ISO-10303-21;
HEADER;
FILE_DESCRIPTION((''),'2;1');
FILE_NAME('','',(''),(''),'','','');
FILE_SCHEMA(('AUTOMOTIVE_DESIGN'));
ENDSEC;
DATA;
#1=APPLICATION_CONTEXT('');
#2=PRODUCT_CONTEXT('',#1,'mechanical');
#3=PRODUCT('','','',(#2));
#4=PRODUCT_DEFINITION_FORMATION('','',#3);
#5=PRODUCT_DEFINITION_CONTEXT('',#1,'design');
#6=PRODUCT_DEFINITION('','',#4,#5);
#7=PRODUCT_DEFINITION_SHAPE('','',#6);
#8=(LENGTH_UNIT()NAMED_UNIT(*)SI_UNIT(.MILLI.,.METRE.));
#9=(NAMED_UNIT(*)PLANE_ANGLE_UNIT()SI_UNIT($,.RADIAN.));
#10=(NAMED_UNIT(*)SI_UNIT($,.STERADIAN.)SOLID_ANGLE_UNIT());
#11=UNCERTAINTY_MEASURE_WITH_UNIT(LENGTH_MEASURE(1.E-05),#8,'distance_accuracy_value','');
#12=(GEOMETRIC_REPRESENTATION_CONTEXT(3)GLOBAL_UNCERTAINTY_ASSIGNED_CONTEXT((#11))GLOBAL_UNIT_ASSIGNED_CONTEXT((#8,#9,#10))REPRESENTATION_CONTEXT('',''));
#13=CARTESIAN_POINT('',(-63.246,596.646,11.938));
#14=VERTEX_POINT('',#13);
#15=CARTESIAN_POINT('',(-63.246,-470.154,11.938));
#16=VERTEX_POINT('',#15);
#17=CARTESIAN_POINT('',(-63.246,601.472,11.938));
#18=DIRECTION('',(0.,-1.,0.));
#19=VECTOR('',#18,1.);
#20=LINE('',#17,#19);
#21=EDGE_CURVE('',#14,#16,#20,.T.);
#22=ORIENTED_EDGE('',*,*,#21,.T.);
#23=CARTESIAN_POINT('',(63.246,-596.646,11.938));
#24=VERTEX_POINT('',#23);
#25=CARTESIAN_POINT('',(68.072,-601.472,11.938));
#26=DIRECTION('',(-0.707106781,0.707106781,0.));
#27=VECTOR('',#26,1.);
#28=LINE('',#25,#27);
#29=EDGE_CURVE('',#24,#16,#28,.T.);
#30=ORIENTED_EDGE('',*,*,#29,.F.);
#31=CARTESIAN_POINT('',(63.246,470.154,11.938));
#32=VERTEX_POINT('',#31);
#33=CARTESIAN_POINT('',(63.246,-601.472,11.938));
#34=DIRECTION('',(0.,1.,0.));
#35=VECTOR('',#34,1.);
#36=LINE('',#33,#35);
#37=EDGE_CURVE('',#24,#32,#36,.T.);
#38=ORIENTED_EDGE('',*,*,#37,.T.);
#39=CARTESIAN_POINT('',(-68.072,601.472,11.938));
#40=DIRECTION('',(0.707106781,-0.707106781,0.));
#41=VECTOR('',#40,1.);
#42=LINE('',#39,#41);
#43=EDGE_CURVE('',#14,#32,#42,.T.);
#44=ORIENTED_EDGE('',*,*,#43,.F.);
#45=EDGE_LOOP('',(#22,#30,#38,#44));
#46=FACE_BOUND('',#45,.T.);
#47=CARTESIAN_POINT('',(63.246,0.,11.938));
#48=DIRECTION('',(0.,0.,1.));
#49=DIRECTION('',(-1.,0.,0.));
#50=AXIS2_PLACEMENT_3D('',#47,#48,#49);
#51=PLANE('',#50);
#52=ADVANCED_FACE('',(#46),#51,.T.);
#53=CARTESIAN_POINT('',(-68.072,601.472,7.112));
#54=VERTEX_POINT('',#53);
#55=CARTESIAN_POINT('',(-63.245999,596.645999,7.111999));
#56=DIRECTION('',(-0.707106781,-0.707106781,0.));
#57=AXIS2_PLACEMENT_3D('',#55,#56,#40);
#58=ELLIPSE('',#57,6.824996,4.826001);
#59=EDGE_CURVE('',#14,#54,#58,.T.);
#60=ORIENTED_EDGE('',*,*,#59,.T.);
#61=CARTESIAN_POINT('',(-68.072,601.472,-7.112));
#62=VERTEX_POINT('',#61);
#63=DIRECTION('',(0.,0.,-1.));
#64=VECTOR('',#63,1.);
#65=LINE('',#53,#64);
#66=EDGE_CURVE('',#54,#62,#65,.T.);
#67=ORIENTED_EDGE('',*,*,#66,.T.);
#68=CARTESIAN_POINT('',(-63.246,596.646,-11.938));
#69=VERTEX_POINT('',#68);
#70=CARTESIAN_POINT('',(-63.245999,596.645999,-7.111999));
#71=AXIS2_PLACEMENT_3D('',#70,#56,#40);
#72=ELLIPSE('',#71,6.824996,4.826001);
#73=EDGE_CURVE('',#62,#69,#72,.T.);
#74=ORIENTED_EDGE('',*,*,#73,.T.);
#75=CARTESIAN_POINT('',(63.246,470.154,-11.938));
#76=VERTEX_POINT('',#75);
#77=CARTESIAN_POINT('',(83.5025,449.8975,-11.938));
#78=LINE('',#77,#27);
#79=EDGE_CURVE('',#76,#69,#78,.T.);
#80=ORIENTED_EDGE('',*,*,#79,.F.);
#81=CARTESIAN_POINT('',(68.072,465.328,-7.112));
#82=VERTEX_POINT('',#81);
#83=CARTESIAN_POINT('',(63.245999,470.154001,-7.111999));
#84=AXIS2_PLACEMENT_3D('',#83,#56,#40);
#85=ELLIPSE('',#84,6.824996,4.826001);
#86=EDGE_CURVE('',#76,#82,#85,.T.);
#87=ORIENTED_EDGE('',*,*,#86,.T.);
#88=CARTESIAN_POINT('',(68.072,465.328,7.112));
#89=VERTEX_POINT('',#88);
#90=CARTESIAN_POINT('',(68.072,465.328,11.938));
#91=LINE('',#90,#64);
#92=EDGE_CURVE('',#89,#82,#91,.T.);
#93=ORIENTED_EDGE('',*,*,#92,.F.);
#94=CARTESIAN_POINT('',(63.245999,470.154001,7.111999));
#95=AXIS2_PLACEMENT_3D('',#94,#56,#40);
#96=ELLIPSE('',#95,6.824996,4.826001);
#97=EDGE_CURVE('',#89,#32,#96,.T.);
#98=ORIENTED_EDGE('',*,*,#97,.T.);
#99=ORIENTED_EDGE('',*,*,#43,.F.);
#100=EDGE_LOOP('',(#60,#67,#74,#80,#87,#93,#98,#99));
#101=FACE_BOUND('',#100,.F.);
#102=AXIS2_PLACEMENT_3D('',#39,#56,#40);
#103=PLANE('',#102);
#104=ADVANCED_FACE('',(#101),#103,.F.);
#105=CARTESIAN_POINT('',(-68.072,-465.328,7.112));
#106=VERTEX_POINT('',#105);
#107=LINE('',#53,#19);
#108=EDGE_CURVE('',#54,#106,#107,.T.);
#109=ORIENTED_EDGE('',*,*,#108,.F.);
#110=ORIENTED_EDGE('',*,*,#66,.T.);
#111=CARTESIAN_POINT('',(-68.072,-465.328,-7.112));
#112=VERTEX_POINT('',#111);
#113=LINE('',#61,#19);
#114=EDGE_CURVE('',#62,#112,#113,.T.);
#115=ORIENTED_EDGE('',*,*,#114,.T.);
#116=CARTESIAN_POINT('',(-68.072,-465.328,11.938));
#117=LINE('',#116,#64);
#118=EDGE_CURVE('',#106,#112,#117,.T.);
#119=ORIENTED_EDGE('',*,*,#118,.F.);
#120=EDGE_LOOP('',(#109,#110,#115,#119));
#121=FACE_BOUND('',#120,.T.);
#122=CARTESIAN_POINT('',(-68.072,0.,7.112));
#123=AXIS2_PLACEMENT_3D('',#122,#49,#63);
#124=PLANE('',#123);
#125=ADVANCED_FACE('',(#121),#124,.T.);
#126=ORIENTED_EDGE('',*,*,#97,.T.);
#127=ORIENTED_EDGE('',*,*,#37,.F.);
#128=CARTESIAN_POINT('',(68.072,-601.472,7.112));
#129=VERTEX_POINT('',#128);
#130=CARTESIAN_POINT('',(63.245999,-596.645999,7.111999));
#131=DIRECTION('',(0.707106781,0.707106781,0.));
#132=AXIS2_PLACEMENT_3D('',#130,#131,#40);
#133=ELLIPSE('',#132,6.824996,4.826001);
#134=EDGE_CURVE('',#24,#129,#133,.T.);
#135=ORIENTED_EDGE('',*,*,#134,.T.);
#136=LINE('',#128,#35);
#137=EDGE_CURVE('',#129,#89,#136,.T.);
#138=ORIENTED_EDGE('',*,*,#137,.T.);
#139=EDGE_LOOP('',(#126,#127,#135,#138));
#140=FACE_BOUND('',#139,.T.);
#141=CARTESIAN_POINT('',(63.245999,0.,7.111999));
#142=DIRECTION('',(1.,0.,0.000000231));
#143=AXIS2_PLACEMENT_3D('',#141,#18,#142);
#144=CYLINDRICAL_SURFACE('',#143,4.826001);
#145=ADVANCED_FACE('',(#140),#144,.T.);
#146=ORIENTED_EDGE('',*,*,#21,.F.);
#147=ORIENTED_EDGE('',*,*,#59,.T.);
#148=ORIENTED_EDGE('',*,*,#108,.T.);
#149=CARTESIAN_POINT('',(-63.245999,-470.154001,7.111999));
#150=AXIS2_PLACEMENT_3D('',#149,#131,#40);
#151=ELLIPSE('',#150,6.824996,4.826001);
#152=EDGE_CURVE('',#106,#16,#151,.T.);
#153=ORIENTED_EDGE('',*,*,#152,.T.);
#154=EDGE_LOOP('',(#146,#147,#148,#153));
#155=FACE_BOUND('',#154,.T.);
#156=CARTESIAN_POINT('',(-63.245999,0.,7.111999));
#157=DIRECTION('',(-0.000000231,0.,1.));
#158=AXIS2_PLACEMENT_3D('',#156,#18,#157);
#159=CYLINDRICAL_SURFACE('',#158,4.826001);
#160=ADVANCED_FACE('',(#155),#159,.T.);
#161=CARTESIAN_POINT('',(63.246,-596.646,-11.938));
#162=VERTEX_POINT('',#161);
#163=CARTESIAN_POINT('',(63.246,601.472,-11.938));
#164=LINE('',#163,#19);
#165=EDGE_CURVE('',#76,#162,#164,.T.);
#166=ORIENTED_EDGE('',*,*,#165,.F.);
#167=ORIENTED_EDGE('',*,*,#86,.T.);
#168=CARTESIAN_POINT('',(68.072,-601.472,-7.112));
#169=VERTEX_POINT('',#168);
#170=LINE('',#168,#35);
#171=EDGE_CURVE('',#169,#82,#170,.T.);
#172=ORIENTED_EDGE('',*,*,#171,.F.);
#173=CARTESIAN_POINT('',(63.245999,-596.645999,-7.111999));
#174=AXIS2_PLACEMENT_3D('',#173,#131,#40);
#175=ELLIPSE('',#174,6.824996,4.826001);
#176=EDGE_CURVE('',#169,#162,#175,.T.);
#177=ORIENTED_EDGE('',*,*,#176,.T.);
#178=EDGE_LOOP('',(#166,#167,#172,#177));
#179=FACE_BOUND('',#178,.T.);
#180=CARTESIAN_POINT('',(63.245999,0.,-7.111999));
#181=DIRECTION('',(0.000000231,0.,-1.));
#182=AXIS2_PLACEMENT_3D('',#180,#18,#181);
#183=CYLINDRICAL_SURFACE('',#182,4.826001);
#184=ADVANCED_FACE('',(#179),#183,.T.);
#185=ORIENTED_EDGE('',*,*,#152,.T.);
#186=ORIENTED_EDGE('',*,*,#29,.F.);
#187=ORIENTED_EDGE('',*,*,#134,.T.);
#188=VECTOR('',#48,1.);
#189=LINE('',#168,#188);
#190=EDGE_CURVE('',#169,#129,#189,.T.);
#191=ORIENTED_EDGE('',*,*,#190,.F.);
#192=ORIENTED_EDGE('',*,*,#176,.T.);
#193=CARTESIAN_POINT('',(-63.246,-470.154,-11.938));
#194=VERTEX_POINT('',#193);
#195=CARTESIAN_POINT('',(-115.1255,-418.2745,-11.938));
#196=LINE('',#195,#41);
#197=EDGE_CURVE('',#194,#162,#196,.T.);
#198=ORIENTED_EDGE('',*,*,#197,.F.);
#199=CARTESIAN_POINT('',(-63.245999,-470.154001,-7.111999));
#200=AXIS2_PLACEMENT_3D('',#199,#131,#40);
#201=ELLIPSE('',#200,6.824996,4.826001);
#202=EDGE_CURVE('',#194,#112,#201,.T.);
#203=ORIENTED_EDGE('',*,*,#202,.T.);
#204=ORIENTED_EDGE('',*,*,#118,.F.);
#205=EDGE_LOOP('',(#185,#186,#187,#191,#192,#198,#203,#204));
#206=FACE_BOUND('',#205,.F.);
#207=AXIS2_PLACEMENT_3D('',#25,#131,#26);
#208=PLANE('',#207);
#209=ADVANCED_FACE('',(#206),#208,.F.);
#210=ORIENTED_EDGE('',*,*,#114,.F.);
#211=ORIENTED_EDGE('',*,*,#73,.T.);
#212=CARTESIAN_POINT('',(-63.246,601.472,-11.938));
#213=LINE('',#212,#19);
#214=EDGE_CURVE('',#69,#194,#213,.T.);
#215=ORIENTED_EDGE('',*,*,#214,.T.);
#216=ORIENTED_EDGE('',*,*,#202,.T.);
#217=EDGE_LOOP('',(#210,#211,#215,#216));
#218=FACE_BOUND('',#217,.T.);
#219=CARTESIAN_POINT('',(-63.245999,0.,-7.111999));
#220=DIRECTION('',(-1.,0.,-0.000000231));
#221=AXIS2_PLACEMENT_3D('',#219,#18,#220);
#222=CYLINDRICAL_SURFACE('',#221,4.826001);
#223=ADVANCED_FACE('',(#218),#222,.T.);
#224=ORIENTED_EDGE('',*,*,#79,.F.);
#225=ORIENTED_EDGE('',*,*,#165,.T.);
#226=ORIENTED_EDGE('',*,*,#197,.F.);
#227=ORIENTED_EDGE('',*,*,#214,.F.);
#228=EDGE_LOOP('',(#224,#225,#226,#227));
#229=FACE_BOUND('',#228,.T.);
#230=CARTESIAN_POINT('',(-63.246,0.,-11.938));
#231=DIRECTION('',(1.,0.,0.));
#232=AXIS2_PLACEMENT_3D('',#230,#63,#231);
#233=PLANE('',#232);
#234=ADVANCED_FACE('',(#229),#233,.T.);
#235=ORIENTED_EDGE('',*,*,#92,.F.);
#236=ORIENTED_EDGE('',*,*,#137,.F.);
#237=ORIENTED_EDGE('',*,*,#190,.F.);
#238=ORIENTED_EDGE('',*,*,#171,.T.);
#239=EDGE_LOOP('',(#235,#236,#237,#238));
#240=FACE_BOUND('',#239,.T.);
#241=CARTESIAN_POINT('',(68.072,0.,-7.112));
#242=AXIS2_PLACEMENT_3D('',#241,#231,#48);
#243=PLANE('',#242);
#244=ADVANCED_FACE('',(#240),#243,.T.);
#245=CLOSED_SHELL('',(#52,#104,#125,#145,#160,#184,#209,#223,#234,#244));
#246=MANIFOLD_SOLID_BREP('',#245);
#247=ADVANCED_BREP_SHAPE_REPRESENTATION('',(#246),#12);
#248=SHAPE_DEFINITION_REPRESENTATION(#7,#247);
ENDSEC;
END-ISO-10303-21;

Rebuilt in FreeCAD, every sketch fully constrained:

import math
import FreeCAD as App
import Part
import Sketcher
from FreeCAD import Vector
Q = App.Units.Quantity

doc = App.newDocument("Part")
body = doc.addObject("PartDesign::Body", "Body")

sketch1 = body.newObject("Sketcher::SketchObject", "Sketch")
sketch1.AttachmentSupport = (doc.getObject("XZ_Plane"), [""])
sketch1.MapMode = "FlatFace"
sketch1.addGeometry([
    Part.LineSegment(Vector(63.2, 11.9, 0), Vector(-63.2, 11.9, 0)),
    Part.ArcOfCircle(Part.Circle(Vector(-63.2, 7.1, 0), Vector(0, 0, 1), 4.8), math.radians(90), math.radians(180)),
    Part.LineSegment(Vector(-68.1, 7.1, 0), Vector(-68.1, -7.1, 0)),
    Part.ArcOfCircle(Part.Circle(Vector(-63.2, -7.1, 0), Vector(0, 0, 1), 4.8), math.radians(-180), math.radians(-90)),
    Part.LineSegment(Vector(-63.2, -11.9, 0), Vector(63.2, -11.9, 0)),
    Part.ArcOfCircle(Part.Circle(Vector(63.2, -7.1, 0), Vector(0, 0, 1), 4.8), math.radians(-90), math.radians(0)),
    Part.LineSegment(Vector(68.1, -7.1, 0), Vector(68.1, 7.1, 0)),
    Part.ArcOfCircle(Part.Circle(Vector(63.2, 7.1, 0), Vector(0, 0, 1), 4.8), math.radians(0), math.radians(90)),
], False)
sketch1.addConstraint([
    Sketcher.Constraint("Tangent", 0, 2, 1, 1),
    Sketcher.Constraint("Tangent", 1, 2, 2, 1),
    Sketcher.Constraint("Tangent", 2, 2, 3, 1),
    Sketcher.Constraint("Tangent", 3, 2, 4, 1),
    Sketcher.Constraint("Tangent", 4, 2, 5, 1),
    Sketcher.Constraint("Tangent", 5, 2, 6, 1),
    Sketcher.Constraint("Tangent", 6, 2, 7, 1),
    Sketcher.Constraint("Tangent", 7, 2, 0, 1),
    Sketcher.Constraint("Horizontal", 0),
    Sketcher.Constraint("Vertical", 2),
    Sketcher.Constraint("Horizontal", 4),
    Sketcher.Constraint("Vertical", 6),
    Sketcher.Constraint("Equal", 1, 3),
    Sketcher.Constraint("Equal", 3, 5),
    Sketcher.Constraint("Equal", 5, 7),
    Sketcher.Constraint("Symmetric", 1, 3, 5, 3, -1, 1),
    Sketcher.Constraint("Radius", 1, Q("0.19 in")),
    Sketcher.Constraint("DistanceX", 0, 2, 0, 1, Q("4.98 in")),
    Sketcher.Constraint("DistanceY", 2, 2, 2, 1, Q("0.56 in")),
])
pad1 = body.newObject("PartDesign::Pad", "Pad")
pad1.Profile = sketch1
pad1.Length = Q("47.36 in")
pad1.Midplane = True

sketch2 = body.newObject("Sketcher::SketchObject", "Sketch001")
sketch2.AttachmentSupport = (doc.getObject("XY_Plane"), [""])
sketch2.MapMode = "FlatFace"
sketch2.AttachmentOffset = App.Placement(Vector(0, 0, 0.47 * 25.4), App.Rotation())
sketch2.addGeometry([
    Part.LineSegment(Vector(-68, -601, 0), Vector(68, -601, 0)),
    Part.LineSegment(Vector(68, -601, 0), Vector(-68, -465, 0)),
    Part.LineSegment(Vector(-68, -465, 0), Vector(-68, -601, 0)),
    Part.LineSegment(Vector(68, 601, 0), Vector(-68, 601, 0)),
    Part.LineSegment(Vector(-68, 601, 0), Vector(68, 465, 0)),
    Part.LineSegment(Vector(68, 465, 0), Vector(68, 601, 0)),
], False)
sketch2.addConstraint([
    Sketcher.Constraint("Coincident", 0, 2, 1, 1),
    Sketcher.Constraint("Coincident", 1, 2, 2, 1),
    Sketcher.Constraint("Coincident", 2, 2, 0, 1),
    Sketcher.Constraint("Coincident", 3, 2, 4, 1),
    Sketcher.Constraint("Coincident", 4, 2, 5, 1),
    Sketcher.Constraint("Coincident", 5, 2, 3, 1),
    Sketcher.Constraint("Horizontal", 0),
    Sketcher.Constraint("Vertical", 2),
    Sketcher.Constraint("Horizontal", 3),
    Sketcher.Constraint("Vertical", 5),
    Sketcher.Constraint("Symmetric", 0, 2, 3, 2, -1, 1),
    Sketcher.Constraint("Symmetric", 1, 2, 4, 2, -1, 1),
    Sketcher.Constraint("Vertical", 2, 2, 3, 2),
    Sketcher.Constraint("Equal", 3, 2),
    Sketcher.Constraint("DistanceY", 1, 2, 3, 2, Q("42 in")),
    Sketcher.Constraint("DistanceX", 0, 1, 0, 2, Q("5.36 in")),
])
pocket1 = body.newObject("PartDesign::Pocket", "Pocket")
pocket1.Profile = sketch2
pocket1.Type = "ThroughAll"

doc.recompute()
